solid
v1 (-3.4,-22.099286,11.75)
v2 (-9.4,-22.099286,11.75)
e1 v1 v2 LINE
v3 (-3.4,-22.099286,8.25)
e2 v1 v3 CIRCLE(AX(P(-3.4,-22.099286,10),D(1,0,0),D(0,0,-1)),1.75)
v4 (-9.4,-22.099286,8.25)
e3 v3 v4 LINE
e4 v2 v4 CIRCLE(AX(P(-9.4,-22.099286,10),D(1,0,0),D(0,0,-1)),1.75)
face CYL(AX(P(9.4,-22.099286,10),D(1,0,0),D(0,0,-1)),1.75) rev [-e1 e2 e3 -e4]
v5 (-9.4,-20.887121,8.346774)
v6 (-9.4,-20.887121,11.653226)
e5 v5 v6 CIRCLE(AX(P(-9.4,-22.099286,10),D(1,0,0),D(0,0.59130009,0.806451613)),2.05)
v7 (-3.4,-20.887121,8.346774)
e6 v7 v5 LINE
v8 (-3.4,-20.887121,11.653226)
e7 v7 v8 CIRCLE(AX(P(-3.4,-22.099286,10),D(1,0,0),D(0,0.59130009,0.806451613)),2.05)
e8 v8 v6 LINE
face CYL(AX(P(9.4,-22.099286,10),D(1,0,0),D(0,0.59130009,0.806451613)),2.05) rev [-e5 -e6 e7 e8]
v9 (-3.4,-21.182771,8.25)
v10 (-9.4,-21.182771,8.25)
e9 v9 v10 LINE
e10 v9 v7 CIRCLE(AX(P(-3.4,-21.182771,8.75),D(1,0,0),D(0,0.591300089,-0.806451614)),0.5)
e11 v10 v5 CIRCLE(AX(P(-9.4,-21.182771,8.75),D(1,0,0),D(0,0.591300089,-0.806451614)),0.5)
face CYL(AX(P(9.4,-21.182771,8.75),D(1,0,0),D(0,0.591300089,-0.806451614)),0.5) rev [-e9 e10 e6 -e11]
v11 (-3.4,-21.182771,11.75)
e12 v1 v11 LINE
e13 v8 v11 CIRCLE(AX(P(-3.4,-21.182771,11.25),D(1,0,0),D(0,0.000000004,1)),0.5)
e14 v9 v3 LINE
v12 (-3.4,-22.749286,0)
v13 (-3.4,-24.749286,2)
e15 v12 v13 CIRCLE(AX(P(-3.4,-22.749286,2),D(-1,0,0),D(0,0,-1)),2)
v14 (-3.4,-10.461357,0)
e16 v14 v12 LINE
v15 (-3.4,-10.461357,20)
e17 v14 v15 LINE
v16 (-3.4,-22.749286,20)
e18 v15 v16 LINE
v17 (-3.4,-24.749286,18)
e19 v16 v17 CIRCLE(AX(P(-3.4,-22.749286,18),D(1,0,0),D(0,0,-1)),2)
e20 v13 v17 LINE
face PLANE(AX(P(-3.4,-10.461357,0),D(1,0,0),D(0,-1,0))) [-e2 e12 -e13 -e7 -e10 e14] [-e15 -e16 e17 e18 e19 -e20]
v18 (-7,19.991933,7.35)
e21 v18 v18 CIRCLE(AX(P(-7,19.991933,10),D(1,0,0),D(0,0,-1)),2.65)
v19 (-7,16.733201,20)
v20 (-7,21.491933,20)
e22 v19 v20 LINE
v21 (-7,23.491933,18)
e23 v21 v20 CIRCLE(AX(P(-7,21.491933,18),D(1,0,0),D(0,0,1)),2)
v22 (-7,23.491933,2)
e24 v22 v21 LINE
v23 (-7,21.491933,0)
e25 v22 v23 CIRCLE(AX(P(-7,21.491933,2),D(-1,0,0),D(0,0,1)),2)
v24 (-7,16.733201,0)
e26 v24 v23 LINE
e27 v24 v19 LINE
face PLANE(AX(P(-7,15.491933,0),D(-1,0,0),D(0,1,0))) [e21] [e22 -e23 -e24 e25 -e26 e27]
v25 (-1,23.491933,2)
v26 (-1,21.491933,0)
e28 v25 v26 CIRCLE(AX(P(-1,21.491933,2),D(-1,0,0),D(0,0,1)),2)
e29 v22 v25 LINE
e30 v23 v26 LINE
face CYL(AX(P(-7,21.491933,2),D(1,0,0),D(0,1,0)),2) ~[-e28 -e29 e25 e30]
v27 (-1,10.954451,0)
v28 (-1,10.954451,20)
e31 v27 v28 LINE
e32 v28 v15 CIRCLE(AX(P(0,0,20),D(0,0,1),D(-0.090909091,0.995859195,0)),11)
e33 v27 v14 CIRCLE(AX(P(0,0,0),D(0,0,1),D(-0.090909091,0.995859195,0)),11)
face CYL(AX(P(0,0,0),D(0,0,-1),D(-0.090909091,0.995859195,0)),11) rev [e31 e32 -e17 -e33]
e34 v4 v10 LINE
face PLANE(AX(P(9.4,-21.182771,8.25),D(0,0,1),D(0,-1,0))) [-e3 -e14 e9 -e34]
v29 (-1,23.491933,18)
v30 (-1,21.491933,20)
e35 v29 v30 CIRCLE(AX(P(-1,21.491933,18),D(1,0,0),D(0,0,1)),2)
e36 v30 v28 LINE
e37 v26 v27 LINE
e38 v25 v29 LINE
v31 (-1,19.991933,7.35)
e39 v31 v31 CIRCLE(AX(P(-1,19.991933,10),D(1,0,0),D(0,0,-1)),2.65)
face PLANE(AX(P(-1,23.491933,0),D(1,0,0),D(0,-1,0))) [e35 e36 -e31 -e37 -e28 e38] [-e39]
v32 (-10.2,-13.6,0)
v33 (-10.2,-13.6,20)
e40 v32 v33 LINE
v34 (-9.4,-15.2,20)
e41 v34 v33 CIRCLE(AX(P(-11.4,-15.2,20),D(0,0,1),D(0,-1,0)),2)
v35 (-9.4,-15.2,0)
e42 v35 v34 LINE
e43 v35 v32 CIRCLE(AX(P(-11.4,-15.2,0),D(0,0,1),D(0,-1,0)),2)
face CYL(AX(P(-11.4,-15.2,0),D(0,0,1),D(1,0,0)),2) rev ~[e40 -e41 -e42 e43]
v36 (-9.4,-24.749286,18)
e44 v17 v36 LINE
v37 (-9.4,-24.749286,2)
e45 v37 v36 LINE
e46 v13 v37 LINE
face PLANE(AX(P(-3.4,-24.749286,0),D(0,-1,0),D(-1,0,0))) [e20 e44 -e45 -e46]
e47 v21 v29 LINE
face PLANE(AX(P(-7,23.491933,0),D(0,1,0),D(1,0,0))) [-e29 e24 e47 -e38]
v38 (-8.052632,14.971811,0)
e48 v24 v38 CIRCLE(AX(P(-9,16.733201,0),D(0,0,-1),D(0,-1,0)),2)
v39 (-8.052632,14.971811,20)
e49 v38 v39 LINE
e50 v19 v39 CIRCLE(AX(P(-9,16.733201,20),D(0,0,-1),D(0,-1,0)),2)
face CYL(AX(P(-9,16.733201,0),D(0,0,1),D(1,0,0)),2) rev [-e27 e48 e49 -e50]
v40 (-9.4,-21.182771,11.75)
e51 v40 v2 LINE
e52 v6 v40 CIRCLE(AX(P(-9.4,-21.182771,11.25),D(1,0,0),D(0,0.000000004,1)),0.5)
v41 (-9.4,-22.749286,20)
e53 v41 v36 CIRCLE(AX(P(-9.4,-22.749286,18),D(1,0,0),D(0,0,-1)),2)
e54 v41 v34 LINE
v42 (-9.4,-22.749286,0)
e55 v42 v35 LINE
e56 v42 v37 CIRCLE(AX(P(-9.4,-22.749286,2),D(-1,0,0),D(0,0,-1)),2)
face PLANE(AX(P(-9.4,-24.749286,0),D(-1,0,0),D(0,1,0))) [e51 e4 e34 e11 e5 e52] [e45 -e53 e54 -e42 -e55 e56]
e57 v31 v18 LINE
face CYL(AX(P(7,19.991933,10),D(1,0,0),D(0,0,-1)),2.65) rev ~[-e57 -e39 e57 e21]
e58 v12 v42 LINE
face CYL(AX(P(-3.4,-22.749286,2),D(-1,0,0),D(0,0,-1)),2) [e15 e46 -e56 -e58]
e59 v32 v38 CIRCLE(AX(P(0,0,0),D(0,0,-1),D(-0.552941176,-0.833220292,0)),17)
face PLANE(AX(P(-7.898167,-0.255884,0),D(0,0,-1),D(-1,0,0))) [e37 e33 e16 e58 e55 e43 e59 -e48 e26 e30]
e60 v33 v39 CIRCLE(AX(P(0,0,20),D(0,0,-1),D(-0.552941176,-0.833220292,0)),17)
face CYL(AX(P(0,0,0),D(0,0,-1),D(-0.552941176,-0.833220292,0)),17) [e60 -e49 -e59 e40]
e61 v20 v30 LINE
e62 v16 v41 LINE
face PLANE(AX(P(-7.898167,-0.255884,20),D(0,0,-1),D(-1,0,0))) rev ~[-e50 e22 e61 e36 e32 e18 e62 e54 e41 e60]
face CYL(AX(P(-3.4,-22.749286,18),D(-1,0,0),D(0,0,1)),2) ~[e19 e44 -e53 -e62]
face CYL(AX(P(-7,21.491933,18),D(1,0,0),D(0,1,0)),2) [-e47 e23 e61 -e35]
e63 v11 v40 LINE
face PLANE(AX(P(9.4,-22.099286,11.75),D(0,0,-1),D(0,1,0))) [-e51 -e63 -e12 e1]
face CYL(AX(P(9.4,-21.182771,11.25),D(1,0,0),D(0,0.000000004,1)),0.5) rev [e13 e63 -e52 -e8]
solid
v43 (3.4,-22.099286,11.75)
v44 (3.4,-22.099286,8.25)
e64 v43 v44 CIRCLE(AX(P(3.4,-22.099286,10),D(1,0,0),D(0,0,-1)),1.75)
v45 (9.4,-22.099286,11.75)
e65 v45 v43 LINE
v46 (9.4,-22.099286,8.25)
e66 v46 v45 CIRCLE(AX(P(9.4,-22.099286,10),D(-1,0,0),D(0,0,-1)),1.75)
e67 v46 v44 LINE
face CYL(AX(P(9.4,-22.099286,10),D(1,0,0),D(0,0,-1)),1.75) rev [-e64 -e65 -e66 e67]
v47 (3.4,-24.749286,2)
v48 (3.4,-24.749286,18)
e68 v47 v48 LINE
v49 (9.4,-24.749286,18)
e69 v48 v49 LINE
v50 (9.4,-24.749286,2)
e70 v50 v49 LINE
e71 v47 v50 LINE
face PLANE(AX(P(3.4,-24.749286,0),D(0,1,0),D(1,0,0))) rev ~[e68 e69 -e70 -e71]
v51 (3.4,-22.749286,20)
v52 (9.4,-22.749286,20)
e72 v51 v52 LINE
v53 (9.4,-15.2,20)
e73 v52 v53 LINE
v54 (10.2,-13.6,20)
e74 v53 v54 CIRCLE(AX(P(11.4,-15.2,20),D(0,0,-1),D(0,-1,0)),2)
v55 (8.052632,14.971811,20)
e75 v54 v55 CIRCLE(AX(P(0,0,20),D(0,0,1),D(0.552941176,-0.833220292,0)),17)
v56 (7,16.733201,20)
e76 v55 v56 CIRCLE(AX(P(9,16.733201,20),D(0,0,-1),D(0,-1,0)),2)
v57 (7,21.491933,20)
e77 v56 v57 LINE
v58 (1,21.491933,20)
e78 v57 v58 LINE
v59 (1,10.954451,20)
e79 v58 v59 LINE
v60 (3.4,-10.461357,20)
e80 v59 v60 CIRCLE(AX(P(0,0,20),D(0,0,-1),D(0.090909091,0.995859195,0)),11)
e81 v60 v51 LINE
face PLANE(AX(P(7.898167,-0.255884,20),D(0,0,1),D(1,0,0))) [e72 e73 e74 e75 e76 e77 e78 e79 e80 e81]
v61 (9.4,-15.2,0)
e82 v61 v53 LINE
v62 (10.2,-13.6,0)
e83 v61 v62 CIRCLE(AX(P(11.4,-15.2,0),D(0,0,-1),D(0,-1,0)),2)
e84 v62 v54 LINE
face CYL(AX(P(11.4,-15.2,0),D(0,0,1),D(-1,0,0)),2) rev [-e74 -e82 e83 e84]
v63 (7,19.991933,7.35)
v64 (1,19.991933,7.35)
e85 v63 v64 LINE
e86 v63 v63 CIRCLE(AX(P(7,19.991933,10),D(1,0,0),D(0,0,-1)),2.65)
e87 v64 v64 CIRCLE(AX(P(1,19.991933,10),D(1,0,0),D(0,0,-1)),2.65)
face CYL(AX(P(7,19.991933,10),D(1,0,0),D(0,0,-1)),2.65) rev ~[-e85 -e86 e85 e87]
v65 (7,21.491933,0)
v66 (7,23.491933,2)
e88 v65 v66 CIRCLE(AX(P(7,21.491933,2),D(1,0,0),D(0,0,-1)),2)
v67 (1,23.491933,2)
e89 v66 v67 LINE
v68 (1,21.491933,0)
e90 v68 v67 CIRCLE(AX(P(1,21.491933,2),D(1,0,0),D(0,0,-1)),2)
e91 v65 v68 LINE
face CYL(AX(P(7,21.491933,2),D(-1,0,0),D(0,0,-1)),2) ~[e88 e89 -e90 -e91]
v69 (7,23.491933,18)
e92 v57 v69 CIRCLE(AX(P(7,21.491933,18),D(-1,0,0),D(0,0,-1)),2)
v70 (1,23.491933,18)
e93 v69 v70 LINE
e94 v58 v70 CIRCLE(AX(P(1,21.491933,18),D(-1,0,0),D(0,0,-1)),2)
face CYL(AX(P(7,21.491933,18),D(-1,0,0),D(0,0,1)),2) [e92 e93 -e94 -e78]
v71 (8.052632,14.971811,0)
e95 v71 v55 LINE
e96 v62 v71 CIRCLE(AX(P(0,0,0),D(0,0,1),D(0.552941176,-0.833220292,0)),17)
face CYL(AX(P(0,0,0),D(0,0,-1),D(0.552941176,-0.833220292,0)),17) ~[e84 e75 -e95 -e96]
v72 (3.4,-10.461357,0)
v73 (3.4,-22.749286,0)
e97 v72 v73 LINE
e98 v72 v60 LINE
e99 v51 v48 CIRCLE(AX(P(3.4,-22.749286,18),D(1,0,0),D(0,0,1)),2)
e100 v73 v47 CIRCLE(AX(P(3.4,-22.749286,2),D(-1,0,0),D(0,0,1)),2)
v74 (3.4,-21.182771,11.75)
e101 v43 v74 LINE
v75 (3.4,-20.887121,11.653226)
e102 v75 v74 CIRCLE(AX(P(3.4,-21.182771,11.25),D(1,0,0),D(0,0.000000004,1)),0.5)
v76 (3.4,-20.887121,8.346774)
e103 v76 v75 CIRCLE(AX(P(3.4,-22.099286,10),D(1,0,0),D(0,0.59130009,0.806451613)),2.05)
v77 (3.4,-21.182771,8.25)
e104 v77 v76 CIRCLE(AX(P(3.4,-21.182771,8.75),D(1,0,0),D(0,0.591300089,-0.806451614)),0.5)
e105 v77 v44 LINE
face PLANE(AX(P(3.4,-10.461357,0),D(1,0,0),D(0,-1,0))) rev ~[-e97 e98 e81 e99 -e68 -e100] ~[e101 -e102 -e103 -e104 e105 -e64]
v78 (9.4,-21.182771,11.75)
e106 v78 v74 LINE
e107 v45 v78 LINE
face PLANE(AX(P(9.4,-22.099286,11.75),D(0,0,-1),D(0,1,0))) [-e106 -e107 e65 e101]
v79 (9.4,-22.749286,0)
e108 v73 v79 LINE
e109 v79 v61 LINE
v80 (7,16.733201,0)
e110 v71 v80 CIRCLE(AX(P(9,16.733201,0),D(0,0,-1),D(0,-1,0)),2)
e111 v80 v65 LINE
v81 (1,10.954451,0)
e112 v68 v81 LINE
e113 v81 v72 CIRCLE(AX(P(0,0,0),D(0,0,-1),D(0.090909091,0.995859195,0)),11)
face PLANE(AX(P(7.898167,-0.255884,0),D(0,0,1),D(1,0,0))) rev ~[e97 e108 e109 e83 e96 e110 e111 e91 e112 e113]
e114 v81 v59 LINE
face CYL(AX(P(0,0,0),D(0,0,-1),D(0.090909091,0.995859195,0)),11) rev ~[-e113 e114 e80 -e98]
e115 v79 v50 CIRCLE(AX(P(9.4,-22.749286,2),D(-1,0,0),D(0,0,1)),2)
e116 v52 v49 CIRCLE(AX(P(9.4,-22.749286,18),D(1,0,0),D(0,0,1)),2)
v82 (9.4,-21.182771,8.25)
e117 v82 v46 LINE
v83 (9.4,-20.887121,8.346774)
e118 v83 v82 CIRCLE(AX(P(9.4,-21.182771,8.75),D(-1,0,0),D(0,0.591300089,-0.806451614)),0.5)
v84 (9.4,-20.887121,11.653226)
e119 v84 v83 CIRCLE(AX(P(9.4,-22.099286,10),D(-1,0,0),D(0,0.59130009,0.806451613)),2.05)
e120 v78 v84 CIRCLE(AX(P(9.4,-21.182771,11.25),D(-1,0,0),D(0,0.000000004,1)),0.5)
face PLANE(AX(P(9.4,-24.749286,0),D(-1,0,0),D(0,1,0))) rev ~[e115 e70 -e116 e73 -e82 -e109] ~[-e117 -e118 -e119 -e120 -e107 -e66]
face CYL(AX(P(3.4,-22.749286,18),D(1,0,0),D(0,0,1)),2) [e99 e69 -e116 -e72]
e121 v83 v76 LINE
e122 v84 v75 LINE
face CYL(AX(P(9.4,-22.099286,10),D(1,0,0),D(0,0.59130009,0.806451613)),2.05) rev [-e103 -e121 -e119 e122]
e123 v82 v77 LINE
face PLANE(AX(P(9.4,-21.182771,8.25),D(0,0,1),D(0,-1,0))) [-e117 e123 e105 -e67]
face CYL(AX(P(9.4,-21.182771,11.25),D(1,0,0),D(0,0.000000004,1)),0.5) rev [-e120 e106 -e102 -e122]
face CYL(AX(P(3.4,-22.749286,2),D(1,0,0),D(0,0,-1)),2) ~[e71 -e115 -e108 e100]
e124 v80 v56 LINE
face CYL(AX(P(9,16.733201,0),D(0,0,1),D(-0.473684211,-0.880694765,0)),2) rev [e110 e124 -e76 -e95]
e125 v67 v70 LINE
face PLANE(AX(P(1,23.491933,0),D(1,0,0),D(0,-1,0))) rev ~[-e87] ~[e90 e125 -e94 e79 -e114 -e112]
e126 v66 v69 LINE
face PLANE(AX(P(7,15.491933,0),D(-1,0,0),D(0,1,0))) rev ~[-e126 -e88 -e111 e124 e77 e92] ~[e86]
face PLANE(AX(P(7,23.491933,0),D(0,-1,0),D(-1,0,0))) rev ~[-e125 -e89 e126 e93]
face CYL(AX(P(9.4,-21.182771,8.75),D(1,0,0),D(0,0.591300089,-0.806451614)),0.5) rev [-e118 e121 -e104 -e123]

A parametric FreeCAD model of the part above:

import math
import FreeCAD as App
import Part
import Sketcher
from FreeCAD import Vector
Q = App.Units.Quantity


def edges_at(feature, points):
    """Names of the edges that pass closest to the given points."""
    edges = feature.Shape.Edges
    near = lambda p: min(range(len(edges)), key=lambda i: edges[i].distToShape(Part.Vertex(*p))[0])
    return sorted({f"Edge{near(p) + 1}" for p in points})

doc = App.newDocument("Part")
params = doc.addObject("Spreadsheet::Sheet", "Params")
for row, (alias, value) in enumerate([
    ("sketch1_radius", "17 mm"),
    ("sketch1_radius2", "11 mm"),
    ("sketch1_width", "6 mm"),
    ("sketch1_height", "8 mm"),
    ("pad1_length", "20 mm"),
    ("sketch2_radius", "17 mm"),
    ("sketch2_radius2", "11 mm"),
    ("sketch2_width", "6 mm"),
    ("sketch2_height", "8 mm"),
    ("pad2_length", "20 mm"),
    ("sketch3_diameter", "5.3 mm"),
    ("pad3_length", "14 mm"),
    ("sketch4_radius", "0.5 mm"),
    ("sketch4_radius2", "1.75 mm"),
    ("sketch4_radius3", "2.05 mm"),
    ("pad4_length", "19 mm"),
    ("fillet_radius", "2 mm"),
    ("fillet2_radius", "2 mm"),
], start=1):
    params.set(f"A{row}", alias)
    params.set(f"B{row}", "=" + value)
    params.setAlias(f"B{row}", alias)

body = doc.addObject("PartDesign::Body", "Body")

sketch1 = body.newObject("Sketcher::SketchObject", "Sketch")
sketch1.AttachmentSupport = (doc.getObject("XY_Plane"), [""])
sketch1.MapMode = "FlatFace"
sketch1.addGeometry([
    Part.LineSegment(Vector(-1, 11, 0), Vector(-1, 23, 0)),
    Part.LineSegment(Vector(-1, 23, 0), Vector(-7, 23, 0)),
    Part.LineSegment(Vector(-7, 23, 0), Vector(-7, 15, 0)),
    Part.ArcOfCircle(Part.Circle(Vector(0, 0, 0), Vector(0, 0, 1), 17), math.radians(114), math.radians(236)),
    Part.LineSegment(Vector(-9, -14, 0), Vector(-9, -25, 0)),
    Part.LineSegment(Vector(-9, -25, 0), Vector(-3, -25, 0)),
    Part.LineSegment(Vector(-3, -25, 0), Vector(-3, -10, 0)),
    Part.ArcOfCircle(Part.Circle(Vector(0, 0, 0), Vector(0, 0, 1), 11), math.radians(95), math.radians(252)),
], False)
sketch1.addConstraint([
    Sketcher.Constraint("Coincident", 0, 2, 1, 1),
    Sketcher.Constraint("Coincident", 1, 2, 2, 1),
    Sketcher.Constraint("Coincident", 2, 2, 3, 1),
    Sketcher.Constraint("Coincident", 3, 2, 4, 1),
    Sketcher.Constraint("Coincident", 4, 2, 5, 1),
    Sketcher.Constraint("Coincident", 5, 2, 6, 1),
    Sketcher.Constraint("Coincident", 6, 2, 7, 2),
    Sketcher.Constraint("Coincident", 7, 1, 0, 1),
    Sketcher.Constraint("Vertical", 0),
    Sketcher.Constraint("Horizontal", 1),
    Sketcher.Constraint("Vertical", 2),
    Sketcher.Constraint("Vertical", 4),
    Sketcher.Constraint("Horizontal", 5),
    Sketcher.Constraint("Vertical", 6),
    Sketcher.Constraint("Coincident", 3, 3, -1, 1),
    Sketcher.Constraint("Coincident", 7, 3, -1, 1),
    Sketcher.Constraint("Equal", 1, 5),
    Sketcher.Constraint("Radius", 3, Q("17 mm")),
    Sketcher.Constraint("Radius", 7, Q("11 mm")),
    Sketcher.Constraint("DistanceX", 1, 2, 1, 1, Q("6 mm")),
    Sketcher.Constraint("DistanceY", 2, 2, 2, 1, Q("8 mm")),
    Sketcher.Constraint("DistanceX", 0, 2, -1, 1, Q("1 mm")),
    Sketcher.Constraint("DistanceX", 3, 2, -1, 1, Q("9.4 mm")),
    Sketcher.Constraint("DistanceY", 4, 2, 4, 1, Q("10.584541 mm")),
])
sketch1.setExpression("Constraints[17]", "Params.sketch1_radius")
sketch1.setExpression("Constraints[18]", "Params.sketch1_radius2")
sketch1.setExpression("Constraints[19]", "Params.sketch1_width")
sketch1.setExpression("Constraints[20]", "Params.sketch1_height")
pad1 = body.newObject("PartDesign::Pad", "Pad")
pad1.Profile = sketch1
pad1.setExpression("Length", "Params.pad1_length")
body2 = doc.addObject("PartDesign::Body", "Body001")

sketch2 = body2.newObject("Sketcher::SketchObject", "Sketch001")
sketch2.AttachmentSupport = (doc.getObject("XY_Plane001"), [""])
sketch2.MapMode = "FlatFace"
sketch2.addGeometry([
    Part.LineSegment(Vector(3, -10, 0), Vector(3, -25, 0)),
    Part.LineSegment(Vector(3, -25, 0), Vector(9, -25, 0)),
    Part.LineSegment(Vector(9, -25, 0), Vector(9, -14, 0)),
    Part.ArcOfCircle(Part.Circle(Vector(0, 0, 0), Vector(0, 0, 1), 17), math.radians(-56), math.radians(66)),
    Part.LineSegment(Vector(7, 15, 0), Vector(7, 23, 0)),
    Part.LineSegment(Vector(7, 23, 0), Vector(1, 23, 0)),
    Part.LineSegment(Vector(1, 23, 0), Vector(1, 11, 0)),
    Part.ArcOfCircle(Part.Circle(Vector(0, 0, 0), Vector(0, 0, 1), 11), math.radians(-72), math.radians(85)),
], False)
sketch2.addConstraint([
    Sketcher.Constraint("Coincident", 0, 2, 1, 1),
    Sketcher.Constraint("Coincident", 1, 2, 2, 1),
    Sketcher.Constraint("Coincident", 2, 2, 3, 1),
    Sketcher.Constraint("Coincident", 3, 2, 4, 1),
    Sketcher.Constraint("Coincident", 4, 2, 5, 1),
    Sketcher.Constraint("Coincident", 5, 2, 6, 1),
    Sketcher.Constraint("Coincident", 6, 2, 7, 2),
    Sketcher.Constraint("Coincident", 7, 1, 0, 1),
    Sketcher.Constraint("Vertical", 0),
    Sketcher.Constraint("Horizontal", 1),
    Sketcher.Constraint("Vertical", 2),
    Sketcher.Constraint("Vertical", 4),
    Sketcher.Constraint("Horizontal", 5),
    Sketcher.Constraint("Vertical", 6),
    Sketcher.Constraint("Coincident", 3, 3, -1, 1),
    Sketcher.Constraint("Coincident", 7, 3, -1, 1),
    Sketcher.Constraint("Equal", 1, 5),
    Sketcher.Constraint("Radius", 3, Q("17 mm")),
    Sketcher.Constraint("Radius", 7, Q("11 mm")),
    Sketcher.Constraint("DistanceX", 1, 1, 1, 2, Q("6 mm")),
    Sketcher.Constraint("DistanceY", 4, 1, 4, 2, Q("8 mm")),
    Sketcher.Constraint("DistanceX", -1, 1, 3, 2, Q("7 mm")),
    Sketcher.Constraint("DistanceX", -1, 1, 0, 2, Q("3.4 mm")),
    Sketcher.Constraint("DistanceY", 0, 2, 0, 1, Q("14.287928 mm")),
])
sketch2.setExpression("Constraints[17]", "Params.sketch2_radius")
sketch2.setExpression("Constraints[18]", "Params.sketch2_radius2")
sketch2.setExpression("Constraints[19]", "Params.sketch2_width")
sketch2.setExpression("Constraints[20]", "Params.sketch2_height")
pad2 = body2.newObject("PartDesign::Pad", "Pad001")
pad2.Profile = sketch2
pad2.setExpression("Length", "Params.pad2_length")
body3 = doc.addObject("PartDesign::Body", "Body002")

sketch3 = body3.newObject("Sketcher::SketchObject", "Sketch002")
sketch3.AttachmentSupport = (doc.getObject("YZ_Plane002"), [""])
sketch3.MapMode = "FlatFace"
sketch3.AttachmentOffset = App.Placement(Vector(0, 0, 7), App.Rotation())
sketch3.addGeometry(Part.Circle(Vector(20, 10, 0), Vector(0, 0, 1), 2.6), False)
sketch3.addConstraint([
    Sketcher.Constraint("Diameter", 0, Q("5.3 mm")),
    Sketcher.Constraint("DistanceY", -1, 1, 0, 3, Q("10 mm")),
    Sketcher.Constraint("DistanceX", -1, 1, 0, 3, Q("19.991933 mm")),
])
sketch3.setExpression("Constraints[0]", "Params.sketch3_diameter")
pad3 = body3.newObject("PartDesign::Pad", "Pad002")
pad3.Profile = sketch3
pad3.setExpression("Length", "Params.pad3_length")
pad3.Reversed = True
doc.recompute()

body4 = doc.addObject("PartDesign::Body", "Body003")
body4.BaseFeature = body3
boolean = body.newObject("PartDesign::Boolean", "Boolean")
boolean.Type = "Cut"
boolean.addObjects([body4])
doc.recompute()

boolean2 = body2.newObject("PartDesign::Boolean", "Boolean001")
boolean2.Type = "Cut"
boolean2.addObjects([body3])
body5 = doc.addObject("PartDesign::Body", "Body004")

sketch4 = body5.newObject("Sketcher::SketchObject", "Sketch003")
sketch4.AttachmentSupport = (doc.getObject("YZ_Plane004"), [""])
sketch4.MapMode = "FlatFace"
sketch4.AttachmentOffset = App.Placement(Vector(0, 0, 9.4), App.Rotation())
sketch4.addGeometry([
    Part.LineSegment(Vector(-21.18, 11.75, 0), Vector(-22.1, 11.75, 0)),
    Part.ArcOfCircle(Part.Circle(Vector(-22.1, 10, 0), Vector(0, 0, 1), 1.75), math.radians(90), math.radians(270)),
    Part.LineSegment(Vector(-22.1, 8.25, 0), Vector(-21.18, 8.25, 0)),
    Part.ArcOfCircle(Part.Circle(Vector(-21.18, 8.75, 0), Vector(0, 0, 1), 0.5), math.radians(-90), math.radians(-54)),
    Part.ArcOfCircle(Part.Circle(Vector(-22.1, 10, 0), Vector(0, 0, 1), 2.05), math.radians(-54), math.radians(54)),
    Part.ArcOfCircle(Part.Circle(Vector(-21.18, 11.25, 0), Vector(0, 0, 1), 0.5), math.radians(54), math.radians(90)),
], False)
sketch4.addConstraint([
    Sketcher.Constraint("Tangent", 0, 2, 1, 1),
    Sketcher.Constraint("Tangent", 1, 2, 2, 1),
    Sketcher.Constraint("Tangent", 2, 2, 3, 1),
    Sketcher.Constraint("Tangent", 3, 2, 4, 1),
    Sketcher.Constraint("Tangent", 4, 2, 5, 1),
    Sketcher.Constraint("Tangent", 5, 2, 0, 1),
    Sketcher.Constraint("Horizontal", 0),
    Sketcher.Constraint("Horizontal", 2),
    Sketcher.Constraint("Coincident", 4, 3, 1, 3),
    Sketcher.Constraint("Equal", 3, 5),
    Sketcher.Constraint("Radius", 3, Q("0.5 mm")),
    Sketcher.Constraint("Radius", 1, Q("1.75 mm")),
    Sketcher.Constraint("Radius", 4, Q("2.05 mm")),
    Sketcher.Constraint("DistanceY", -1, 1, 1, 3, Q("10 mm")),
    Sketcher.Constraint("DistanceX", 3, 3, -1, 1, Q("21.182771 mm")),
])
sketch4.setExpression("Constraints[10]", "Params.sketch4_radius")
sketch4.setExpression("Constraints[11]", "Params.sketch4_radius2")
sketch4.setExpression("Constraints[12]", "Params.sketch4_radius3")
pad4 = body5.newObject("PartDesign::Pad", "Pad003")
pad4.Profile = sketch4
pad4.setExpression("Length", "Params.pad4_length")
pad4.Reversed = True
doc.recompute()

body6 = doc.addObject("PartDesign::Body", "Body005")
body6.BaseFeature = body5
boolean3 = body.newObject("PartDesign::Boolean", "Boolean002")
boolean3.Type = "Cut"
boolean3.addObjects([body6])
doc.recompute()

fillet = body.newObject("PartDesign::Fillet", "Fillet")
fillet.Base = (boolean3, edges_at(boolean3, [
    (-4, 23.492, 0),
    (-4, 23.492, 20),
    (-9.4, -14.165, 10),
    (-7, 15.492, 10),
    (-6.4, -24.749, 20),
    (-6.4, -24.749, 0),
]))
fillet.setExpression("Radius", "Params.fillet_radius")
doc.recompute()

boolean4 = body2.newObject("PartDesign::Boolean", "Boolean003")
boolean4.Type = "Cut"
boolean4.addObjects([body5])
doc.recompute()

fillet2 = body2.newObject("PartDesign::Fillet", "Fillet001")
fillet2.Base = (boolean4, edges_at(boolean4, [
    (6.4, -24.749, 0),
    (6.4, -24.749, 20),
    (7, 15.492, 10),
    (9.4, -14.165, 10),
    (4, 23.492, 20),
    (4, 23.492, 0),
]))
fillet2.setExpression("Radius", "Params.fillet2_radius")

doc.recompute()
